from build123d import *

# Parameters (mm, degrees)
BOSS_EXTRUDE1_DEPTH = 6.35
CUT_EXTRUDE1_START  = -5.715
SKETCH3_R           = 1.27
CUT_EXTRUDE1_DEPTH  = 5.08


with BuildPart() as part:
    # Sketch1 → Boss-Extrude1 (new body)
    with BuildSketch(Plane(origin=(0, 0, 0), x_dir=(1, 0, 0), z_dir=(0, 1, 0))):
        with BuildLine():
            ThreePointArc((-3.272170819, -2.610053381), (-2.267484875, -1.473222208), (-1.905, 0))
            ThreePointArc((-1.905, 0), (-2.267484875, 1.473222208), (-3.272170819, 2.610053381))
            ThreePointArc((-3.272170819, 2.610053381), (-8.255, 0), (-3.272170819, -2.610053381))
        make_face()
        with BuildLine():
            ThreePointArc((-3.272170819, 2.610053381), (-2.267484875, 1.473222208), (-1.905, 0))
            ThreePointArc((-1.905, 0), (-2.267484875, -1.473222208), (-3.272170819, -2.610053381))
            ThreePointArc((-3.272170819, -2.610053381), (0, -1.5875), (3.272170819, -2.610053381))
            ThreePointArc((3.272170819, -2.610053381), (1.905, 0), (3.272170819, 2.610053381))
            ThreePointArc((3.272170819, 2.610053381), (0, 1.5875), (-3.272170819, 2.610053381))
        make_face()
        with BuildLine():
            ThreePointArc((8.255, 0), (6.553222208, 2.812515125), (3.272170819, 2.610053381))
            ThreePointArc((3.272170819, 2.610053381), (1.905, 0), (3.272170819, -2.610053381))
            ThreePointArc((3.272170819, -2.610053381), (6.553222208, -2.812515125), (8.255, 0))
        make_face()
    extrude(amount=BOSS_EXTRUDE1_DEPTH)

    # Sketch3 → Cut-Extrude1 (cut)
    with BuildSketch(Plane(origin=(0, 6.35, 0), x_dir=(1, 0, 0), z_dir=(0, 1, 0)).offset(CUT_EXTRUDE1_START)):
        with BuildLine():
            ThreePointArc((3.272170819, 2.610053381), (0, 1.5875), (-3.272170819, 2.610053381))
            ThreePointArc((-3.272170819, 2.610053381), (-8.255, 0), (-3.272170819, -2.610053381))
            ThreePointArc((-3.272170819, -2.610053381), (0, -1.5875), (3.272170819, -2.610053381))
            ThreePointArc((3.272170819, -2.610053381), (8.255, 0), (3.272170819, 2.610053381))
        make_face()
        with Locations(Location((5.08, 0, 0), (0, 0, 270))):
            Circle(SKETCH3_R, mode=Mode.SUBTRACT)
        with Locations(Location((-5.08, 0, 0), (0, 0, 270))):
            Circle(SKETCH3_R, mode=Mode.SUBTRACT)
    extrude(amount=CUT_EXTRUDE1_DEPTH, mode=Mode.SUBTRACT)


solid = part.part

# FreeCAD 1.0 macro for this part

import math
import FreeCAD as App
import Part
import Sketcher

V = App.Vector
Q = App.Units.Quantity

doc = App.newDocument("Part")
body = doc.addObject("PartDesign::Body", "Body")

# Sketch on XZ plane
sketch1 = doc.addObject("Sketcher::SketchObject", "Sketch")
body.addObject(sketch1)
sketch1.AttachmentSupport = (doc.XZ_Plane, [""])
sketch1.MapMode = "FlatFace"
sketch1.addGeometry([
    Part.ArcOfCircle(Part.Circle(V(-5.08, 0, 0), V(0, 0, 1), 3.175), math.radians(55.291951), math.radians(304.708049)),  # 0
    Part.ArcOfCircle(Part.Circle(V(0, 7.33425, 0), V(0, 0, 1), 5.74675), math.radians(-124.708049), math.radians(-55.291951)),  # 1
    Part.ArcOfCircle(Part.Circle(V(5.08, 0, 0), V(0, 0, 1), 3.175), math.radians(0), math.radians(124.708049)),  # 2
    Part.ArcOfCircle(Part.Circle(V(5.08, 0, 0), V(0, 0, 1), 3.175), math.radians(-124.708049), math.radians(0)),  # 3
    Part.ArcOfCircle(Part.Circle(V(0, -7.33425, 0), V(0, 0, 1), 5.74675), math.radians(55.291951), math.radians(124.708049)),  # 4
], False)
sketch1.addConstraint([
    Sketcher.Constraint("Tangent", 0, 1, 1, 1),
    Sketcher.Constraint("Tangent", 1, 2, 2, 2),
    Sketcher.Constraint("Tangent", 2, 1, 3, 2),
    Sketcher.Constraint("Tangent", 3, 1, 4, 1),
    Sketcher.Constraint("Tangent", 4, 2, 0, 2),
    Sketcher.Constraint("Equal", 0, 2),
    Sketcher.Constraint("Equal", 2, 3),
    Sketcher.Constraint("Equal", 1, 4),
    Sketcher.Constraint("Symmetric", 0, 3, 2, 3, -1, 1),
    Sketcher.Constraint("PointOnObject", 0, 3, -1),
    Sketcher.Constraint("PointOnObject", 2, 1, -1),
    Sketcher.Constraint("Radius", 0, Q("0.125 in")),
    Sketcher.Constraint("DistanceX", 0, 3, -1, 1, Q("0.2 in")),
    Sketcher.Constraint("Radius", 1, Q("5.74675 mm")),
])
pad1 = doc.addObject("PartDesign::Pad", "Pad")
body.addObject(pad1)
pad1.Profile = sketch1
pad1.Length = Q("0.25 in")
pad1.Reversed = True

# Sketch on XZ plane
sketch2 = doc.addObject("Sketcher::SketchObject", "Sketch001")
body.addObject(sketch2)
sketch2.AttachmentSupport = (doc.XZ_Plane, [""])
sketch2.MapMode = "FlatFace"
sketch2.AttachmentOffset = App.Placement(V(0, 0, -0.025 * 25.4), App.Rotation())
sketch2.addGeometry([
    Part.ArcOfCircle(Part.Circle(V(0, -7.33425, 0), V(0, 0, 1), 5.74675), math.radians(55.291951), math.radians(124.708049)),  # 0
    Part.ArcOfCircle(Part.Circle(V(-5.08, 0, 0), V(0, 0, 1), 3.175), math.radians(55.291951), math.radians(304.708049)),  # 1
    Part.ArcOfCircle(Part.Circle(V(0, 7.33425, 0), V(0, 0, 1), 5.74675), math.radians(-124.708049), math.radians(-55.291951)),  # 2
    Part.ArcOfCircle(Part.Circle(V(5.08, 0, 0), V(0, 0, 1), 3.175), math.radians(-124.708049), math.radians(124.708049)),  # 3
    Part.Circle(V(-5.08, 0, 0), V(0, 0, 1), 1.27),  # 4
    Part.Circle(V(5.08, 0, 0), V(0, 0, 1), 1.27),  # 5
], False)
sketch2.addConstraint([
    Sketcher.Constraint("Tangent", 0, 2, 1, 2),
    Sketcher.Constraint("Tangent", 1, 1, 2, 1),
    Sketcher.Constraint("Tangent", 2, 2, 3, 2),
    Sketcher.Constraint("Tangent", 3, 1, 0, 1),
    Sketcher.Constraint("Coincident", 4, 3, 1, 3),
    Sketcher.Constraint("Coincident", 5, 3, 3, 3),
    Sketcher.Constraint("Equal", 0, 2),
    Sketcher.Constraint("Equal", 1, 3),
    Sketcher.Constraint("Equal", 4, 5),
    Sketcher.Constraint("Symmetric", 0, 3, 2, 3, -1, 1),
    Sketcher.Constraint("PointOnObject", 0, 3, -2),
    Sketcher.Constraint("Diameter", 4, Q("0.1 in")),
    Sketcher.Constraint("Radius", 1, Q("0.125 in")),
    Sketcher.Constraint("DistanceX", 1, 3, -1, 1, Q("0.2 in")),
    Sketcher.Constraint("Radius", 0, Q("5.74675 mm")),
])
pocket1 = doc.addObject("PartDesign::Pocket", "Pocket")
body.addObject(pocket1)
pocket1.Profile = sketch2
pocket1.Length = Q("0.2 in")

doc.recompute()
